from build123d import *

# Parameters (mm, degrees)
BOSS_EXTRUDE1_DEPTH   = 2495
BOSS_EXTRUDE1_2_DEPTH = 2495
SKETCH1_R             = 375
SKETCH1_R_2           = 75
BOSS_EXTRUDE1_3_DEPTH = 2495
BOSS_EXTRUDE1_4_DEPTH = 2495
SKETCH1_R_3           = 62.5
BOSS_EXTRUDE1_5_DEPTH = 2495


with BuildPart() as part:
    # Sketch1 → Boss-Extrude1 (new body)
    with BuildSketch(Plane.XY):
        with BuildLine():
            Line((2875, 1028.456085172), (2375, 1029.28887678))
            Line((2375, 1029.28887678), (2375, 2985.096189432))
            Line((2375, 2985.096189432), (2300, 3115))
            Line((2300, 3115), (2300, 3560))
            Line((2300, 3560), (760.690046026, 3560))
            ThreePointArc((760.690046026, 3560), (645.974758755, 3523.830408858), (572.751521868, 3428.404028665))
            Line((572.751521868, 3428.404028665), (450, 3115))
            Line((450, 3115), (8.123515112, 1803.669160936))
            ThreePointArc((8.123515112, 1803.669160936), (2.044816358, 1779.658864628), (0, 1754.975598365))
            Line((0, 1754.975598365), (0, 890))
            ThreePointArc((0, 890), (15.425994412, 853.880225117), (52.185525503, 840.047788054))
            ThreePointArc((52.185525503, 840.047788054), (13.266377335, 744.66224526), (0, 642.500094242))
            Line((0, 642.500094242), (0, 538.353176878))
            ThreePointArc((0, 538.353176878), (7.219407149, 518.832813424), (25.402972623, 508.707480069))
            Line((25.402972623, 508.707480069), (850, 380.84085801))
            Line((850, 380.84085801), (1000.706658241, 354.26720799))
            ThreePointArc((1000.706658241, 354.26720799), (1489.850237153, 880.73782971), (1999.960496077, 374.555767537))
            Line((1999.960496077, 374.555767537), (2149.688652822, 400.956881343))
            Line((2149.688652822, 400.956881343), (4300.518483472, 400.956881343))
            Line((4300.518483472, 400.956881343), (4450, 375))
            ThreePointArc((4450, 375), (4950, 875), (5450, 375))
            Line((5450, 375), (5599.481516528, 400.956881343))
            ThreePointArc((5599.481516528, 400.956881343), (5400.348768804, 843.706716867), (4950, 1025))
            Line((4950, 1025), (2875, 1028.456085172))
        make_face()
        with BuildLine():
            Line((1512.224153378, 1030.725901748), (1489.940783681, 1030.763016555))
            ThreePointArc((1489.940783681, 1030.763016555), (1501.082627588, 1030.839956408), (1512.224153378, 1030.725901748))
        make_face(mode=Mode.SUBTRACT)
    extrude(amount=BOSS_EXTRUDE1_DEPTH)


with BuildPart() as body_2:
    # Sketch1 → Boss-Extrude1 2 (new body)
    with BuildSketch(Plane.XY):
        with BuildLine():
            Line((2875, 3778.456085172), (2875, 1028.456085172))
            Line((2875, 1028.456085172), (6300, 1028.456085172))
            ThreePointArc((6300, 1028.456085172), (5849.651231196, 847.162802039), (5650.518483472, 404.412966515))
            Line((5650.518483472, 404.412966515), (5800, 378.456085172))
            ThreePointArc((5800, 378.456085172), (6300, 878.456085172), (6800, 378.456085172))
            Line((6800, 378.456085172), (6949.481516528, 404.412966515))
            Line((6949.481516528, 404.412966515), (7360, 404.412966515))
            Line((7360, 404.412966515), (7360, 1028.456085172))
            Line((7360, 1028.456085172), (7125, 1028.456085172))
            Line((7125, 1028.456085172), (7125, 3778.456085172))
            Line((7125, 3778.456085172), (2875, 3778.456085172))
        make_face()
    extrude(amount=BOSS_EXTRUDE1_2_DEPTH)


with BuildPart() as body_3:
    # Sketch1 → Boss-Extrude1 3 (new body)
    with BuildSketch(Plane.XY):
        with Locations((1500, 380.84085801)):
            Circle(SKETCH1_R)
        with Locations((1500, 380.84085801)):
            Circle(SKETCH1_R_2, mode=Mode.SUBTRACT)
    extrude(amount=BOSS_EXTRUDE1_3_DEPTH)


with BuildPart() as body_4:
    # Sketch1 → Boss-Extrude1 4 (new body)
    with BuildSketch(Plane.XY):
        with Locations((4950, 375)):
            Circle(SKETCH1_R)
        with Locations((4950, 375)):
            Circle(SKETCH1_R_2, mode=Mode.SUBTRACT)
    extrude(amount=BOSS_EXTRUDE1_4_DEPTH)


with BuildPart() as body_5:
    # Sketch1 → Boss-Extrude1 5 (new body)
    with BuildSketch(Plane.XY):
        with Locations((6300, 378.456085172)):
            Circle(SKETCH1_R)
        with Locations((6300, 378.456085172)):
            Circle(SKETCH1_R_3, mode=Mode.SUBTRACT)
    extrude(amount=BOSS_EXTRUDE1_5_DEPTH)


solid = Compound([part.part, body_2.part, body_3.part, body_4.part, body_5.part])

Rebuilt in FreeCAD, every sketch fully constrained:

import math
import FreeCAD as App
import Part
import Sketcher
Q = App.Units.Quantity

doc = App.newDocument("Part")
body = doc.addObject("PartDesign::Body", "Body")

# Sketch on XY plane
sketch1 = body.newObject("Sketcher::SketchObject", "Sketch")
sketch1.AttachmentSupport = (doc.getObject("XY_Plane"), [""])
sketch1.MapMode = "FlatFace"
sketch1.addGeometry([
    Part.LineSegment(App.Vector(2375, 1029.288877, 0), App.Vector(2375, 2985.096189, 0)),  # 0
    Part.LineSegment(App.Vector(2375, 2985.096189, 0), App.Vector(2300, 3115, 0)),  # 1
    Part.LineSegment(App.Vector(2300, 3115, 0), App.Vector(2300, 3560, 0)),  # 2
    Part.LineSegment(App.Vector(2300, 3560, 0), App.Vector(760.690046, 3560, 0)),  # 3
    Part.ArcOfCircle(Part.Circle(App.Vector(760.690046, 3360, 0), App.Vector(0, 0, 1), 200), math.radians(90), math.radians(160)),  # 4
    Part.LineSegment(App.Vector(572.751522, 3428.404029, 0), App.Vector(450, 3115, 0)),  # 5
    Part.LineSegment(App.Vector(450, 3115, 0), App.Vector(8.123515, 1803.669161, 0)),  # 6
    Part.ArcOfCircle(Part.Circle(App.Vector(150, 1754.975598, 0), App.Vector(0, 0, 1), 150), math.radians(161.057218), math.radians(180)),  # 7
    Part.LineSegment(App.Vector(0, 1754.975598, 0), App.Vector(0, 890, 0)),  # 8
    Part.ArcOfCircle(Part.Circle(App.Vector(50, 890, 0), App.Vector(0, 0, 1), 50), math.radians(180), math.radians(272.505226)),  # 9
    Part.ArcOfCircle(Part.Circle(App.Vector(400, 642.500094, 0), App.Vector(0, 0, 1), 400), math.radians(150.404786), math.radians(180)),  # 10
    Part.LineSegment(App.Vector(0, 642.500094, 0), App.Vector(0, 538.353177, 0)),  # 11
    Part.ArcOfCircle(Part.Circle(App.Vector(30, 538.353177, 0), App.Vector(0, 0, 1), 30), math.radians(180), math.radians(261.185597)),  # 12
    Part.LineSegment(App.Vector(25.402973, 508.70748, 0), App.Vector(850, 380.840858, 0)),  # 13
    Part.LineSegment(App.Vector(850, 380.840858, 0), App.Vector(1000.706658, 354.267208, 0)),  # 14
    Part.ArcOfCircle(Part.Circle(App.Vector(1500, 380.840858, 0), App.Vector(0, 0, 1), 500), math.radians(-0.720237), math.radians(183.046551)),  # 15
    Part.LineSegment(App.Vector(1999.960496, 374.555768, 0), App.Vector(2149.688653, 400.956881, 0)),  # 16
    Part.LineSegment(App.Vector(2149.688653, 400.956881, 0), App.Vector(4300.518483, 400.956881, 0)),  # 17
    Part.LineSegment(App.Vector(4300.518483, 400.956881, 0), App.Vector(4450, 375, 0)),  # 18
    Part.ArcOfCircle(Part.Circle(App.Vector(4950, 375, 0), App.Vector(0, 0, 1), 500), math.radians(0), math.radians(180)),  # 19
    Part.LineSegment(App.Vector(5450, 375, 0), App.Vector(5599.481517, 400.956881, 0)),  # 20
    Part.ArcOfCircle(Part.Circle(App.Vector(4950, 375, 0), App.Vector(0, 0, 1), 650), math.radians(2.288639), math.radians(90)),  # 21
    Part.LineSegment(App.Vector(4950, 1025, 0), App.Vector(2375, 1029.288877, 0)),  # 22
    Part.ArcOfCircle(Part.Circle(App.Vector(1500, 380.840859, 0), App.Vector(0, 0, 1), 649.999999), math.radians(88.92241), math.radians(90.886729)),  # 23
    Part.LineSegment(App.Vector(1512.224153, 1030.725902, 0), App.Vector(1489.940784, 1030.763017, 0)),  # 24
], False)
sketch1.addConstraint([
    Sketcher.Constraint("Coincident", 0, 2, 1, 1),
    Sketcher.Constraint("Coincident", 1, 2, 2, 1),
    Sketcher.Constraint("Coincident", 2, 2, 3, 1),
    Sketcher.Constraint("Tangent", 3, 2, 4, 1),
    Sketcher.Constraint("Coincident", 4, 2, 5, 1),
    Sketcher.Constraint("Coincident", 5, 2, 6, 1),
    Sketcher.Constraint("Coincident", 6, 2, 7, 1),
    Sketcher.Constraint("Tangent", 7, 2, 8, 1),
    Sketcher.Constraint("Tangent", 8, 2, 9, 1),
    Sketcher.Constraint("Coincident", 9, 2, 10, 1),
    Sketcher.Constraint("Tangent", 10, 2, 11, 1),
    Sketcher.Constraint("Tangent", 11, 2, 12, 1),
    Sketcher.Constraint("Tangent", 12, 2, 13, 1),
    Sketcher.Constraint("Coincident", 13, 2, 14, 1),
    Sketcher.Constraint("Coincident", 14, 2, 15, 2),
    Sketcher.Constraint("Coincident", 15, 1, 16, 1),
    Sketcher.Constraint("Coincident", 16, 2, 17, 1),
    Sketcher.Constraint("Coincident", 17, 2, 18, 1),
    Sketcher.Constraint("Coincident", 18, 2, 19, 2),
    Sketcher.Constraint("Coincident", 19, 1, 20, 1),
    Sketcher.Constraint("Coincident", 20, 2, 21, 1),
    Sketcher.Constraint("Coincident", 21, 2, 22, 1),
    Sketcher.Constraint("Coincident", 22, 2, 0, 1),
    Sketcher.Constraint("Coincident", 23, 1, 24, 1),
    Sketcher.Constraint("Coincident", 24, 2, 23, 2),
    Sketcher.Constraint("Vertical", 0),
    Sketcher.Constraint("Vertical", 2),
    Sketcher.Constraint("Horizontal", 3),
    Sketcher.Constraint("Vertical", 8),
    Sketcher.Constraint("Vertical", 11),
    Sketcher.Constraint("Horizontal", 17),
    Sketcher.Constraint("Coincident", 21, 3, 19, 3),
    Sketcher.Constraint("Coincident", 23, 3, 15, 3),
    Sketcher.Constraint("Equal", 15, 19),
    Sketcher.Constraint("Equal", 21, 23),
    Sketcher.Constraint("PointOnObject", 7, 2, -2),
    Sketcher.Constraint("PointOnObject", 10, 2, -2),
    Sketcher.Constraint("Parallel", 22, 24),
    Sketcher.Constraint("Horizontal", 1, 2, 5, 2),
    Sketcher.Constraint("Horizontal", 23, 3, 13, 2),
    Sketcher.Constraint("Horizontal", 21, 3, 18, 2),
    Sketcher.Constraint("Horizontal", 18, 2, 19, 1),
    Sketcher.Constraint("Horizontal", 17, 2, 20, 2),
    Sketcher.Constraint("Equal", 18, 20),
    Sketcher.Constraint("Radius", 4, Q("200 mm")),
    Sketcher.Constraint("Radius", 7, Q("150 mm")),
    Sketcher.Constraint("Radius", 9, Q("50 mm")),
    Sketcher.Constraint("Radius", 10, Q("400 mm")),
    Sketcher.Constraint("Radius", 12, Q("30 mm")),
    Sketcher.Constraint("Radius", 15, Q("500 mm")),
    Sketcher.Constraint("Radius", 21, Q("650 mm")),
    Sketcher.Constraint("DistanceY", 2, 1, 2, 2, Q("445 mm")),
    Sketcher.Constraint("Angle", 1, Q("120 deg")),
    Sketcher.Constraint("Angle", 14, Q("-10 deg")),
    Sketcher.Constraint("Angle", 16, Q("10 deg")),
    Sketcher.Constraint("Distance", 1, Q("150 mm")),
    Sketcher.Constraint("DistanceY", -1, 1, 4, 3, Q("3360 mm")),
    Sketcher.Constraint("DistanceY", -1, 1, 9, 3, Q("890 mm")),
    Sketcher.Constraint("DistanceX", -1, 1, 15, 3, Q("1500 mm")),
    Sketcher.Constraint("DistanceX", -1, 1, 19, 3, Q("4950 mm")),
    Sketcher.Constraint("DistanceY", -1, 1, 19, 3, Q("375 mm")),
    Sketcher.Constraint("DistanceX", -1, 1, 0, 2, Q("2375 mm")),
    Sketcher.Constraint("DistanceX", -1, 1, 5, 2, Q("450 mm")),
    Sketcher.Constraint("DistanceX", -1, 1, 13, 2, Q("850 mm")),
    Sketcher.Constraint("DistanceY", 8, 2, 8, 1, Q("864.975598 mm")),
    Sketcher.Constraint("Distance", 24, Q("22.283401 mm")),
    Sketcher.Constraint("DistanceX", 17, 1, 17, 2, Q("2150.829831 mm")),
    Sketcher.Constraint("DistanceY", -1, 1, 23, 1, Q("1030.725902 mm")),
    Sketcher.Constraint("Distance", 5, Q("336.585831 mm")),
    Sketcher.Constraint("Distance", 22, Q("2575.003572 mm")),
    Sketcher.Constraint("DistanceX", 3, 2, 3, 1, Q("1539.309954 mm")),
    Sketcher.Constraint("DistanceY", 0, 1, 0, 2, Q("1955.807313 mm")),
    Sketcher.Constraint("DistanceY", 11, 2, 11, 1, Q("104.146917 mm")),
    Sketcher.Constraint("DistanceY", -1, 1, 6, 2, Q("1803.669161 mm")),
    Sketcher.Constraint("DistanceY", -1, 1, 9, 2, Q("840.047788 mm")),
    Sketcher.Constraint("DistanceY", -1, 1, 16, 2, Q("400.956881 mm")),
])
pad1 = body.newObject("PartDesign::Pad", "Pad")
pad1.Profile = sketch1
pad1.Length = 2495
body2 = doc.addObject("PartDesign::Body", "Body001")

# Sketch on XY plane
sketch2 = body2.newObject("Sketcher::SketchObject", "Sketch001")
sketch2.AttachmentSupport = (doc.getObject("XY_Plane001"), [""])
sketch2.MapMode = "FlatFace"
sketch2.addGeometry([
    Part.LineSegment(App.Vector(2875, 3778.456085, 0), App.Vector(2875, 1028.456085, 0)),  # 0
    Part.LineSegment(App.Vector(2875, 1028.456085, 0), App.Vector(6300, 1028.456085, 0)),  # 1
    Part.ArcOfCircle(Part.Circle(App.Vector(6300, 378.456085, 0), App.Vector(0, 0, 1), 650), math.radians(90), math.radians(177.711361)),  # 2
    Part.LineSegment(App.Vector(5650.518483, 404.412967, 0), App.Vector(5800, 378.456085, 0)),  # 3
    Part.ArcOfCircle(Part.Circle(App.Vector(6300, 378.456085, 0), App.Vector(0, 0, 1), 500), math.radians(0), math.radians(180)),  # 4
    Part.LineSegment(App.Vector(6800, 378.456085, 0), App.Vector(6949.481517, 404.412967, 0)),  # 5
    Part.LineSegment(App.Vector(6949.481517, 404.412967, 0), App.Vector(7360, 404.412967, 0)),  # 6
    Part.LineSegment(App.Vector(7360, 404.412967, 0), App.Vector(7360, 1028.456085, 0)),  # 7
    Part.LineSegment(App.Vector(7360, 1028.456085, 0), App.Vector(7125, 1028.456085, 0)),  # 8
    Part.LineSegment(App.Vector(7125, 1028.456085, 0), App.Vector(7125, 3778.456085, 0)),  # 9
    Part.LineSegment(App.Vector(7125, 3778.456085, 0), App.Vector(2875, 3778.456085, 0)),  # 10
], False)
sketch2.addConstraint([
    Sketcher.Constraint("Coincident", 0, 2, 1, 1),
    Sketcher.Constraint("Tangent", 1, 2, 2, 1),
    Sketcher.Constraint("Coincident", 2, 2, 3, 1),
    Sketcher.Constraint("Coincident", 3, 2, 4, 2),
    Sketcher.Constraint("Coincident", 4, 1, 5, 1),
    Sketcher.Constraint("Coincident", 5, 2, 6, 1),
    Sketcher.Constraint("Coincident", 6, 2, 7, 1),
    Sketcher.Constraint("Coincident", 7, 2, 8, 1),
    Sketcher.Constraint("Coincident", 8, 2, 9, 1),
    Sketcher.Constraint("Coincident", 9, 2, 10, 1),
    Sketcher.Constraint("Coincident", 10, 2, 0, 1),
    Sketcher.Constraint("Vertical", 0),
    Sketcher.Constraint("Horizontal", 1),
    Sketcher.Constraint("Horizontal", 6),
    Sketcher.Constraint("Vertical", 7),
    Sketcher.Constraint("Horizontal", 8),
    Sketcher.Constraint("Vertical", 9),
    Sketcher.Constraint("Horizontal", 10),
    Sketcher.Constraint("Coincident", 4, 3, 2, 3),
    Sketcher.Constraint("Horizontal", 4, 3, 3, 2),
    Sketcher.Constraint("Horizontal", 3, 2, 4, 1),
    Sketcher.Constraint("Horizontal", 1, 2, 7, 2),
    Sketcher.Constraint("Equal", 3, 5),
    Sketcher.Constraint("Radius", 2, Q("650 mm")),
    Sketcher.Constraint("Radius", 4, Q("500 mm")),
    Sketcher.Constraint("DistanceX", 1, 1, 1, 2, Q("3425 mm")),
    Sketcher.Constraint("DistanceX", 8, 2, 8, 1, Q("235 mm")),
    Sketcher.Constraint("DistanceX", 10, 2, 10, 1, Q("4250 mm")),
    Sketcher.Constraint("DistanceY", 0, 2, 0, 1, Q("2750 mm")),
    Sketcher.Constraint("DistanceX", -1, 1, 2, 3, Q("6300 mm")),
    Sketcher.Constraint("DistanceY", 7, 1, 7, 2, Q("624.043119 mm")),
    Sketcher.Constraint("DistanceX", 6, 1, 6, 2, Q("410.518483 mm")),
    Sketcher.Constraint("DistanceY", -1, 1, 2, 3, Q("378.456085 mm")),
])
pad2 = body2.newObject("PartDesign::Pad", "Pad001")
pad2.Profile = sketch2
pad2.Length = 2495
body3 = doc.addObject("PartDesign::Body", "Body002")

# Sketch on XY plane
sketch3 = body3.newObject("Sketcher::SketchObject", "Sketch002")
sketch3.AttachmentSupport = (doc.getObject("XY_Plane002"), [""])
sketch3.MapMode = "FlatFace"
sketch3.addGeometry([
    Part.Circle(App.Vector(1500, 380.840858, 0), App.Vector(0, 0, 1), 375),
    Part.Circle(App.Vector(1500, 380.840858, 0), App.Vector(0, 0, 1), 75),
], False)
sketch3.addConstraint([
    Sketcher.Constraint("Coincident", 1, 3, 0, 3),
    Sketcher.Constraint("Diameter", 0, Q("750 mm")),
    Sketcher.Constraint("Diameter", 1, Q("150 mm")),
    Sketcher.Constraint("DistanceX", -1, 1, 0, 3, Q("1500 mm")),
    Sketcher.Constraint("DistanceY", -1, 1, 0, 3, Q("380.840858 mm")),
])
pad3 = body3.newObject("PartDesign::Pad", "Pad002")
pad3.Profile = sketch3
pad3.Length = 2495
body4 = doc.addObject("PartDesign::Body", "Body003")

# Sketch on XY plane
sketch4 = body4.newObject("Sketcher::SketchObject", "Sketch003")
sketch4.AttachmentSupport = (doc.getObject("XY_Plane003"), [""])
sketch4.MapMode = "FlatFace"
sketch4.addGeometry([
    Part.Circle(App.Vector(4950, 375, 0), App.Vector(0, 0, 1), 375),
    Part.Circle(App.Vector(4950, 375, 0), App.Vector(0, 0, 1), 75),
], False)
sketch4.addConstraint([
    Sketcher.Constraint("Coincident", 1, 3, 0, 3),
    Sketcher.Constraint("Diameter", 0, Q("750 mm")),
    Sketcher.Constraint("Diameter", 1, Q("150 mm")),
    Sketcher.Constraint("DistanceX", -1, 1, 0, 3, Q("4950 mm")),
    Sketcher.Constraint("DistanceY", -1, 1, 0, 3, Q("375 mm")),
])
pad4 = body4.newObject("PartDesign::Pad", "Pad003")
pad4.Profile = sketch4
pad4.Length = 2495
body5 = doc.addObject("PartDesign::Body", "Body004")

# Sketch on XY plane
sketch5 = body5.newObject("Sketcher::SketchObject", "Sketch004")
sketch5.AttachmentSupport = (doc.getObject("XY_Plane004"), [""])
sketch5.MapMode = "FlatFace"
sketch5.addGeometry([
    Part.Circle(App.Vector(6300, 378.456085, 0), App.Vector(0, 0, 1), 375),
    Part.Circle(App.Vector(6300, 378.456085, 0), App.Vector(0, 0, 1), 62.5),
], False)
sketch5.addConstraint([
    Sketcher.Constraint("Coincident", 1, 3, 0, 3),
    Sketcher.Constraint("Diameter", 0, Q("750 mm")),
    Sketcher.Constraint("Diameter", 1, Q("125 mm")),
    Sketcher.Constraint("DistanceX", -1, 1, 0, 3, Q("6300 mm")),
    Sketcher.Constraint("DistanceY", -1, 1, 0, 3, Q("378.456085 mm")),
])
pad5 = body5.newObject("PartDesign::Pad", "Pad004")
pad5.Profile = sketch5
pad5.Length = 2495

doc.recompute()
